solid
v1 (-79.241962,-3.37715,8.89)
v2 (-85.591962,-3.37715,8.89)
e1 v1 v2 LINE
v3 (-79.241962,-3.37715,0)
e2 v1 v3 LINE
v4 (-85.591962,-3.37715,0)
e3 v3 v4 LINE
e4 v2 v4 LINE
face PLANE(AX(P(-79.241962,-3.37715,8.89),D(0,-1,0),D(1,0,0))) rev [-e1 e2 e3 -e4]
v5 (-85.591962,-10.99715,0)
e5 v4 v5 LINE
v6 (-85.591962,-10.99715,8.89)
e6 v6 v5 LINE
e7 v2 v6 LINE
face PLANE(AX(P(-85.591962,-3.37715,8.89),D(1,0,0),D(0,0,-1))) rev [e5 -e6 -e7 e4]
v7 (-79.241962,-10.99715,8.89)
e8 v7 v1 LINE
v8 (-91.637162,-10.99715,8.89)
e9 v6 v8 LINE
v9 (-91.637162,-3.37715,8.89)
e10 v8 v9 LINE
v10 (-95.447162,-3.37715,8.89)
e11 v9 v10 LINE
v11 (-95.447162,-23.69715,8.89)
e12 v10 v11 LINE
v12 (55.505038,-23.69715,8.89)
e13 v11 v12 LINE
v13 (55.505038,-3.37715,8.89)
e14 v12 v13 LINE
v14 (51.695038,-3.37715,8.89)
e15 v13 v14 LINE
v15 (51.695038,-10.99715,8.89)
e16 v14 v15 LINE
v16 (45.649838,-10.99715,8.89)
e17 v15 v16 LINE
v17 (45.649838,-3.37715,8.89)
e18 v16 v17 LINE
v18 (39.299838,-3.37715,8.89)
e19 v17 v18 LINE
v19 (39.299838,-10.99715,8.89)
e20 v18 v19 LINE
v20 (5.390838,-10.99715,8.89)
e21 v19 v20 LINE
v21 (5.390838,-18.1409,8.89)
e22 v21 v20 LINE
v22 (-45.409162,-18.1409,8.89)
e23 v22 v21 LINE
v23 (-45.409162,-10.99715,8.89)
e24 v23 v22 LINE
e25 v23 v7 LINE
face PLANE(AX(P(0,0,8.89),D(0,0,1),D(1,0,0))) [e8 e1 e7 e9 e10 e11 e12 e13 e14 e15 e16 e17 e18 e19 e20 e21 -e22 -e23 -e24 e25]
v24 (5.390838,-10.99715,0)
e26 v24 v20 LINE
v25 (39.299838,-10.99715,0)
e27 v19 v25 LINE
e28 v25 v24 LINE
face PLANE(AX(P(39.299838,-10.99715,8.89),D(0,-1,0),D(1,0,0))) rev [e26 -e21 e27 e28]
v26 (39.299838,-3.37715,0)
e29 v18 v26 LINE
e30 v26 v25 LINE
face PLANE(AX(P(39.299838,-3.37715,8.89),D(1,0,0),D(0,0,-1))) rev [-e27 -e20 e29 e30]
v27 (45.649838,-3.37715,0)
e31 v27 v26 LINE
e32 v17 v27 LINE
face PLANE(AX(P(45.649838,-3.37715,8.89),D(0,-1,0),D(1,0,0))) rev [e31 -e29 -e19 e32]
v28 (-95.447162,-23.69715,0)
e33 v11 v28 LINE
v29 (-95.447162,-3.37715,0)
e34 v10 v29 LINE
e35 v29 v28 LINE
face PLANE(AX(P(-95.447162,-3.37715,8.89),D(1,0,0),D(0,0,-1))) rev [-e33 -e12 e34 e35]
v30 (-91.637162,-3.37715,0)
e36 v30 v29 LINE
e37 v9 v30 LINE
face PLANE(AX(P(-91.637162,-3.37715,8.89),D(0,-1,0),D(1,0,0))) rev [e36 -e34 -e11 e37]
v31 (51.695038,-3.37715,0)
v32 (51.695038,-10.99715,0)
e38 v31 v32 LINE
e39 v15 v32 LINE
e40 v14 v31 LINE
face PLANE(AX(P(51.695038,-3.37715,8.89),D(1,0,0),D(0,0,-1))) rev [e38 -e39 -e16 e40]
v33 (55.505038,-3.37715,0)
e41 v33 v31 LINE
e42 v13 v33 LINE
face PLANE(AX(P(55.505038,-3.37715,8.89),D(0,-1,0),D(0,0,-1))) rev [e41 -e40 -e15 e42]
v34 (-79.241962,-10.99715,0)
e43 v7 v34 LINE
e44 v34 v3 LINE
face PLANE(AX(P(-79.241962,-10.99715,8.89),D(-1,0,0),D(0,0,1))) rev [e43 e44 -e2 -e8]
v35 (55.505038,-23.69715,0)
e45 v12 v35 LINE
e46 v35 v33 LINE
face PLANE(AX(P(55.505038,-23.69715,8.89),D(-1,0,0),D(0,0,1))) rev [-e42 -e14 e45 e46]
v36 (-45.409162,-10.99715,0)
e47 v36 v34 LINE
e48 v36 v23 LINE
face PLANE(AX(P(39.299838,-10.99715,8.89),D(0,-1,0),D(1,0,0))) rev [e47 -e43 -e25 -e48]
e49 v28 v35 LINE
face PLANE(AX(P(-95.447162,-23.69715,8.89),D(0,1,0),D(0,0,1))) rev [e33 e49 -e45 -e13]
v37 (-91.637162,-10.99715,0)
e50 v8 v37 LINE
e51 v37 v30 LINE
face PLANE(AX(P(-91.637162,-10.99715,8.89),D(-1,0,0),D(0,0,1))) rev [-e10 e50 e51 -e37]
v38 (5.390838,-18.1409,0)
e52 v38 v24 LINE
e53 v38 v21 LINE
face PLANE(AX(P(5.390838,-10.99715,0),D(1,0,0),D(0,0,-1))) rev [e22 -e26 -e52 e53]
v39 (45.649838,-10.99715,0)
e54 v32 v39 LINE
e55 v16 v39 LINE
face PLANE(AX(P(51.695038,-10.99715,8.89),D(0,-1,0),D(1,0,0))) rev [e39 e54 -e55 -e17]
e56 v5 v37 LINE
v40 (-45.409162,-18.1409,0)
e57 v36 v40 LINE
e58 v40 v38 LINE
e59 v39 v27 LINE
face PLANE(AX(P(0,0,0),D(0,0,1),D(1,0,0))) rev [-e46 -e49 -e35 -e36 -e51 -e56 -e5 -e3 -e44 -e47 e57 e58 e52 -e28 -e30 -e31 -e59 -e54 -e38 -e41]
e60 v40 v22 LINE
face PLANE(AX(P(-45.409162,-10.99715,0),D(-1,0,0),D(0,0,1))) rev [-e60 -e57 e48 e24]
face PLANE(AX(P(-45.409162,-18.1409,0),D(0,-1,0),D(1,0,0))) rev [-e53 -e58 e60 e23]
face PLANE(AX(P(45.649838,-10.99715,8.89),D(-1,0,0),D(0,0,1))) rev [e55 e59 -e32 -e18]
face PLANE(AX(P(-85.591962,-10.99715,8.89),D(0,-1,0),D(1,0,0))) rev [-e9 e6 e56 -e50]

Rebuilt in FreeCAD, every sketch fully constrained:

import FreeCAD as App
import Part
import Sketcher
Q = App.Units.Quantity

doc = App.newDocument("Part")
params = doc.addObject("Spreadsheet::Sheet", "Params")
for row, (alias, value) in enumerate([
    ("sketch1_height", "0.8 in"),
    ("sketch1_height2", "0.3 in"),
    ("sketch1_width", "0.15 in"),
    ("sketch1_width2", "0.25 in"),
    ("sketch1_width3", "5.943 in"),
    ("pad1_length", "0.35 in"),
    ("sketch2_width", "2 in"),
    ("sketch2_height", "0.28125 in"),
    ("pocket1_length", "0.35 in"),
], start=1):
    params.set(f"A{row}", alias)
    params.set(f"B{row}", "=" + value)
    params.setAlias(f"B{row}", alias)

body = doc.addObject("PartDesign::Body", "Body")

sketch1 = body.newObject("Sketcher::SketchObject", "Sketch")
sketch1.AttachmentSupport = (doc.getObject("XY_Plane"), [""])
sketch1.MapMode = "FlatFace"
sketch1.addGeometry([
    Part.LineSegment(App.Vector(-95.4, -23.7, 0), App.Vector(55.5, -23.7, 0)),
    Part.LineSegment(App.Vector(55.5, -23.7, 0), App.Vector(55.5, -3.4, 0)),
    Part.LineSegment(App.Vector(55.5, -3.4, 0), App.Vector(51.7, -3.4, 0)),
    Part.LineSegment(App.Vector(51.7, -3.4, 0), App.Vector(51.7, -11, 0)),
    Part.LineSegment(App.Vector(51.7, -11, 0), App.Vector(45.6, -11, 0)),
    Part.LineSegment(App.Vector(45.6, -11, 0), App.Vector(45.6, -3.4, 0)),
    Part.LineSegment(App.Vector(45.6, -3.4, 0), App.Vector(39.3, -3.4, 0)),
    Part.LineSegment(App.Vector(39.3, -3.4, 0), App.Vector(39.3, -11, 0)),
    Part.LineSegment(App.Vector(39.3, -11, 0), App.Vector(-79.2, -11, 0)),
    Part.LineSegment(App.Vector(-79.2, -11, 0), App.Vector(-79.2, -3.4, 0)),
    Part.LineSegment(App.Vector(-79.2, -3.4, 0), App.Vector(-85.6, -3.4, 0)),
    Part.LineSegment(App.Vector(-85.6, -3.4, 0), App.Vector(-85.6, -11, 0)),
    Part.LineSegment(App.Vector(-85.6, -11, 0), App.Vector(-91.6, -11, 0)),
    Part.LineSegment(App.Vector(-91.6, -11, 0), App.Vector(-91.6, -3.4, 0)),
    Part.LineSegment(App.Vector(-91.6, -3.4, 0), App.Vector(-95.4, -3.4, 0)),
    Part.LineSegment(App.Vector(-95.4, -3.4, 0), App.Vector(-95.4, -23.7, 0)),
], False)
sketch1.addConstraint([
    Sketcher.Constraint("Coincident", 0, 2, 1, 1),
    Sketcher.Constraint("Coincident", 1, 2, 2, 1),
    Sketcher.Constraint("Coincident", 2, 2, 3, 1),
    Sketcher.Constraint("Coincident", 3, 2, 4, 1),
    Sketcher.Constraint("Coincident", 4, 2, 5, 1),
    Sketcher.Constraint("Coincident", 5, 2, 6, 1),
    Sketcher.Constraint("Coincident", 6, 2, 7, 1),
    Sketcher.Constraint("Coincident", 7, 2, 8, 1),
    Sketcher.Constraint("Coincident", 8, 2, 9, 1),
    Sketcher.Constraint("Coincident", 9, 2, 10, 1),
    Sketcher.Constraint("Coincident", 10, 2, 11, 1),
    Sketcher.Constraint("Coincident", 11, 2, 12, 1),
    Sketcher.Constraint("Coincident", 12, 2, 13, 1),
    Sketcher.Constraint("Coincident", 13, 2, 14, 1),
    Sketcher.Constraint("Coincident", 14, 2, 15, 1),
    Sketcher.Constraint("Coincident", 15, 2, 0, 1),
    Sketcher.Constraint("Horizontal", 0),
    Sketcher.Constraint("Vertical", 1),
    Sketcher.Constraint("Horizontal", 2),
    Sketcher.Constraint("Vertical", 3),
    Sketcher.Constraint("Horizontal", 4),
    Sketcher.Constraint("Vertical", 5),
    Sketcher.Constraint("Horizontal", 6),
    Sketcher.Constraint("Vertical", 7),
    Sketcher.Constraint("Horizontal", 8),
    Sketcher.Constraint("Vertical", 9),
    Sketcher.Constraint("Horizontal", 10),
    Sketcher.Constraint("Vertical", 11),
    Sketcher.Constraint("Horizontal", 12),
    Sketcher.Constraint("Vertical", 13),
    Sketcher.Constraint("Horizontal", 14),
    Sketcher.Constraint("Vertical", 15),
    Sketcher.Constraint("Horizontal", 2, 2, 5, 2),
    Sketcher.Constraint("Horizontal", 4, 2, 7, 2),
    Sketcher.Constraint("Horizontal", 6, 2, 9, 2),
    Sketcher.Constraint("Horizontal", 8, 2, 11, 2),
    Sketcher.Constraint("Horizontal", 10, 2, 13, 2),
    Sketcher.Constraint("Equal", 6, 10),
    Sketcher.Constraint("Equal", 4, 12),
    Sketcher.Constraint("Equal", 2, 14),
    Sketcher.Constraint("DistanceY", 1, 1, 1, 2, Q("0.8 in")),
    Sketcher.Constraint("DistanceY", 3, 2, 3, 1, Q("0.3 in")),
    Sketcher.Constraint("DistanceX", 2, 2, 2, 1, Q("0.15 in")),
    Sketcher.Constraint("DistanceX", 6, 2, 6, 1, Q("0.25 in")),
    Sketcher.Constraint("DistanceX", 0, 1, 0, 2, Q("5.943 in")),
    Sketcher.Constraint("DistanceX", 4, 2, 4, 1, Q("0.238 in")),
    Sketcher.Constraint("DistanceX", -1, 1, 0, 2, 55.505038),
    Sketcher.Constraint("DistanceY", 0, 2, -1, 1, 23.69715),
])
sketch1.setExpression("Constraints[40]", "Params.sketch1_height")
sketch1.setExpression("Constraints[41]", "Params.sketch1_height2")
sketch1.setExpression("Constraints[42]", "Params.sketch1_width")
sketch1.setExpression("Constraints[43]", "Params.sketch1_width2")
sketch1.setExpression("Constraints[44]", "Params.sketch1_width3")
pad1 = body.newObject("PartDesign::Pad", "Pad")
pad1.Profile = sketch1
pad1.setExpression("Length", "Params.pad1_length")

sketch2 = body.newObject("Sketcher::SketchObject", "Sketch001")
sketch2.AttachmentSupport = (doc.getObject("XY_Plane"), [""])
sketch2.MapMode = "FlatFace"
sketch2.AttachmentOffset = App.Placement(App.Vector(0, 0, 0.35 * 25.4), App.Rotation())
sketch2.addGeometry([
    Part.LineSegment(App.Vector(-45, -11, 0), App.Vector(-45, -18, 0)),
    Part.LineSegment(App.Vector(-45, -18, 0), App.Vector(5, -18, 0)),
    Part.LineSegment(App.Vector(5, -18, 0), App.Vector(5, -11, 0)),
    Part.LineSegment(App.Vector(5, -11, 0), App.Vector(-45, -11, 0)),
], False)
sketch2.addConstraint([
    Sketcher.Constraint("Coincident", 0, 2, 1, 1),
    Sketcher.Constraint("Coincident", 1, 2, 2, 1),
    Sketcher.Constraint("Coincident", 2, 2, 3, 1),
    Sketcher.Constraint("Coincident", 3, 2, 0, 1),
    Sketcher.Constraint("Vertical", 0),
    Sketcher.Constraint("Horizontal", 1),
    Sketcher.Constraint("Vertical", 2),
    Sketcher.Constraint("Horizontal", 3),
    Sketcher.Constraint("DistanceX", 1, 1, 1, 2, Q("2 in")),
    Sketcher.Constraint("DistanceY", 0, 2, 0, 1, Q("0.28125 in")),
    Sketcher.Constraint("DistanceY", 0, 2, -1, 1, 18.1409),
    Sketcher.Constraint("DistanceX", 0, 2, -1, 1, 45.409162),
])
sketch2.setExpression("Constraints[8]", "Params.sketch2_width")
sketch2.setExpression("Constraints[9]", "Params.sketch2_height")
pocket1 = body.newObject("PartDesign::Pocket", "Pocket")
pocket1.Profile = sketch2
pocket1.setExpression("Length", "Params.pocket1_length")

doc.recompute()
